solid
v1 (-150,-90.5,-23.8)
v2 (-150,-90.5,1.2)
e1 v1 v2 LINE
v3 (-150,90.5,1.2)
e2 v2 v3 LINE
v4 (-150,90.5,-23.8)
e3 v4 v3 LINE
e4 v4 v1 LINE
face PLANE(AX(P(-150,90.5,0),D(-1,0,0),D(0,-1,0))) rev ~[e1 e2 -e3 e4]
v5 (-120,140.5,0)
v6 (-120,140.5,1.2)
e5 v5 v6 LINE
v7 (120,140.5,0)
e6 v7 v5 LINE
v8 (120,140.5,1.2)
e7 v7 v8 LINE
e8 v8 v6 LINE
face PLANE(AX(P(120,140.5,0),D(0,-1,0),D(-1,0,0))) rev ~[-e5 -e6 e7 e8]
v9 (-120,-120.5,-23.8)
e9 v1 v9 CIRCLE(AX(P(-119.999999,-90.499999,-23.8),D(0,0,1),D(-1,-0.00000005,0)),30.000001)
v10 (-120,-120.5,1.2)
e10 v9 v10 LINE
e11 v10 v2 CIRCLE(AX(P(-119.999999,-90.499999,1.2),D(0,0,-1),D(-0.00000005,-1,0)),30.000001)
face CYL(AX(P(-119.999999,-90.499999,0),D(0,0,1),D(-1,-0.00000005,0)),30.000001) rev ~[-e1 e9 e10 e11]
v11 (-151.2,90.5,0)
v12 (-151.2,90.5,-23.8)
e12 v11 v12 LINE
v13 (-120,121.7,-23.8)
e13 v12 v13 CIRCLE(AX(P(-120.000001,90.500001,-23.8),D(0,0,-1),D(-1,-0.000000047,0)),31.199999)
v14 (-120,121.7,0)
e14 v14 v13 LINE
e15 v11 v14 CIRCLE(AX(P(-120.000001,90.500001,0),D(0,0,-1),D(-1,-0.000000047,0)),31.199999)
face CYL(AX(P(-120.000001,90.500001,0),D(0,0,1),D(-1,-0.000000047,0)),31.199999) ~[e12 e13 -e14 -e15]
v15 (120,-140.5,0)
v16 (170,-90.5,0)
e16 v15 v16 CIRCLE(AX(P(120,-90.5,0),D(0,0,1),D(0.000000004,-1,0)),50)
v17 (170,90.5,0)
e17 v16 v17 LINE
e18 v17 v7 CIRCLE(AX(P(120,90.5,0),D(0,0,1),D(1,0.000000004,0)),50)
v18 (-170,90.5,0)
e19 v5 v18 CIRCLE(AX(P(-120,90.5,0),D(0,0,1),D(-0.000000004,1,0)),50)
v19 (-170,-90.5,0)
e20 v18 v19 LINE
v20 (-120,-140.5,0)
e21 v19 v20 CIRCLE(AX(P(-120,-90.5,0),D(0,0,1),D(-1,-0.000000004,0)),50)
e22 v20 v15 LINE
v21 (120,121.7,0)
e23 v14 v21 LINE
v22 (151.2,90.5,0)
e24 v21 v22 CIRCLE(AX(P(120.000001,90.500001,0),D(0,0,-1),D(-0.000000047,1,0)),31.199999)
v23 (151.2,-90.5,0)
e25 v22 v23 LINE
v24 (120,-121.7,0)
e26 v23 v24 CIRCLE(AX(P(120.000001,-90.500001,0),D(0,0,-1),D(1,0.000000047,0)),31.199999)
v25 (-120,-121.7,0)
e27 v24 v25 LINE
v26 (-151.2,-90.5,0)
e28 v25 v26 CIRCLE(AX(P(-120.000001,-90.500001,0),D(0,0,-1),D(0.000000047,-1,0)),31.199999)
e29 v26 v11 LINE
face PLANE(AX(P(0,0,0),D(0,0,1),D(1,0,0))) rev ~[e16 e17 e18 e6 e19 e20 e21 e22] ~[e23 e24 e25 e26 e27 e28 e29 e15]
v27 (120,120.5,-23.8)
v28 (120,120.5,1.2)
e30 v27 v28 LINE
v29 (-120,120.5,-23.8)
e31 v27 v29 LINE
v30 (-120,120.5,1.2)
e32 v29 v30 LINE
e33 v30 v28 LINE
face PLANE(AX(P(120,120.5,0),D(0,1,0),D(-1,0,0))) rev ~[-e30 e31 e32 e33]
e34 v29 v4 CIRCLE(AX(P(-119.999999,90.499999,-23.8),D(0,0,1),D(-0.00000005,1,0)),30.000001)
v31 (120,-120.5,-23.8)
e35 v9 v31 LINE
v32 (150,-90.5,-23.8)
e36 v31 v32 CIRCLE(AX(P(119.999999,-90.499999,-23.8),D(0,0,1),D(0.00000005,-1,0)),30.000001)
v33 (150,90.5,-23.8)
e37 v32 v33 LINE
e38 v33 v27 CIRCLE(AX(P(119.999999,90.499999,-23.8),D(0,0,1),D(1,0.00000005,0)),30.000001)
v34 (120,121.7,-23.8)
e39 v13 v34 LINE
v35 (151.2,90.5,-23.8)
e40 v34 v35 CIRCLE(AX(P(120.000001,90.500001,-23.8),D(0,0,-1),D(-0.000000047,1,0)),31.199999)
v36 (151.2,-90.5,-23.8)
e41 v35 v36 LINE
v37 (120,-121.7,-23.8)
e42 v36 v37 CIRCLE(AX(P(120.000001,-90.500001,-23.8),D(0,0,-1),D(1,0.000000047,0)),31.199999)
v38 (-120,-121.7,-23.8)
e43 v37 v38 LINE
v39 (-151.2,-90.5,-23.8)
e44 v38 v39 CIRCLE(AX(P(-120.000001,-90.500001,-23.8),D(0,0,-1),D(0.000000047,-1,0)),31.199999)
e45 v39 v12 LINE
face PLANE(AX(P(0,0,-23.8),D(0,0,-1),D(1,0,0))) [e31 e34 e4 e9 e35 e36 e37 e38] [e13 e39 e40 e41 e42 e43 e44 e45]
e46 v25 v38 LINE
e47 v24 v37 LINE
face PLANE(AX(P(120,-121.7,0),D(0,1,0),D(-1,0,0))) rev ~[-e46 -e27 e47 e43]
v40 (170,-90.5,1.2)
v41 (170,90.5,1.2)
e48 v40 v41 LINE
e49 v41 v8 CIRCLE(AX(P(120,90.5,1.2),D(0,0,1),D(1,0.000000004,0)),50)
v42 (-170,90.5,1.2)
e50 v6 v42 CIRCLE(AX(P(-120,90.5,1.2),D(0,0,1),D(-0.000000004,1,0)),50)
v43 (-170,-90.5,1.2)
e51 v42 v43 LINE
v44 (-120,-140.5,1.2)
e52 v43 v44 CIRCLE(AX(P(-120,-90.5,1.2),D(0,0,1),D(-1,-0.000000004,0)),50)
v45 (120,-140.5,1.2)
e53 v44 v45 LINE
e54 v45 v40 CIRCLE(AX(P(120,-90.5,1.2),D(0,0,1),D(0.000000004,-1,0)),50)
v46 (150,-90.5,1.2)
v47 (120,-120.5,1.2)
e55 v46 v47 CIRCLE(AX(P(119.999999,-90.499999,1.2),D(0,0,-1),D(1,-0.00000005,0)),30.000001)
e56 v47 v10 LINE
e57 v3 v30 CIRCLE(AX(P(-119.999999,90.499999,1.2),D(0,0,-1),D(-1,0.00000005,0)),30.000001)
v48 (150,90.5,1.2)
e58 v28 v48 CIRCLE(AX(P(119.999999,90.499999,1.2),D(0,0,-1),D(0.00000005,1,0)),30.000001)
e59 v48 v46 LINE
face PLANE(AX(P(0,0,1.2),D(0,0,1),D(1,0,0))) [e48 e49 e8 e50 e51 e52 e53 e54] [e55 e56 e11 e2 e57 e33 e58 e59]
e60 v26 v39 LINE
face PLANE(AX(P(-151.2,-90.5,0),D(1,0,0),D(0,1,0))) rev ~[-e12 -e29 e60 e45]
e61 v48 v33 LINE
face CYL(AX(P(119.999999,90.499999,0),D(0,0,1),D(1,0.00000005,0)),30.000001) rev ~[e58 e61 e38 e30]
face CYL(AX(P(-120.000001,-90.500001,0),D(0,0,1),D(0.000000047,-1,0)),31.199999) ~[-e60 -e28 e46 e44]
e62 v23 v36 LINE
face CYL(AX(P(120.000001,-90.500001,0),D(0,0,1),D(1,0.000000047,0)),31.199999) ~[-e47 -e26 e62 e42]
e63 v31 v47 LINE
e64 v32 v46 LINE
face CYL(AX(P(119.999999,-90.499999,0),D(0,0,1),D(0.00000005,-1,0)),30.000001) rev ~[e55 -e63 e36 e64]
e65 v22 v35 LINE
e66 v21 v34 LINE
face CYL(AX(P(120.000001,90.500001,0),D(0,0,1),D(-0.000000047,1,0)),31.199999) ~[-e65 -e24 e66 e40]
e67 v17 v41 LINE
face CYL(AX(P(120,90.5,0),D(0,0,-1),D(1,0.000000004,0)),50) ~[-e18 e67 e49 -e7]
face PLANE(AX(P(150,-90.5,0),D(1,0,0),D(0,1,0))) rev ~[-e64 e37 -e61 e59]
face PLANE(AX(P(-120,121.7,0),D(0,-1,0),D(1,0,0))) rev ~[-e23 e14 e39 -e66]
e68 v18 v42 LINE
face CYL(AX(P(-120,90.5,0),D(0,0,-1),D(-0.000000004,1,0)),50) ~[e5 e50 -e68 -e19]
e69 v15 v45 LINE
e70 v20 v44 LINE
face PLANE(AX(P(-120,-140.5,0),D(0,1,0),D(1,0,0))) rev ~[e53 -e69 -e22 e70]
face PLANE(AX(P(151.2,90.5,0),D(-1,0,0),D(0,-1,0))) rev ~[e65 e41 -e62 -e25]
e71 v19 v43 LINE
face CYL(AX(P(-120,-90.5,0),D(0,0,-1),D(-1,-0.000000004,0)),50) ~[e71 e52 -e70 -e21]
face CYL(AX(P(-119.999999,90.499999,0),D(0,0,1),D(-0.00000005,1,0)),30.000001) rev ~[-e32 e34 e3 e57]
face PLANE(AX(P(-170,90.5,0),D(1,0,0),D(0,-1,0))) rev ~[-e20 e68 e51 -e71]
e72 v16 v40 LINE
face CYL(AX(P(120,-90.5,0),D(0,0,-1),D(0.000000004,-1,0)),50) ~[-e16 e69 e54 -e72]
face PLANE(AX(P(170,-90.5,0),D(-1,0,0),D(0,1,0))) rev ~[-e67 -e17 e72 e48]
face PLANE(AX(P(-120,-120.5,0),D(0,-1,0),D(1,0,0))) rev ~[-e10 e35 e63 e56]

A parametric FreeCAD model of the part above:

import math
import FreeCAD as App
import Part
import Sketcher

doc = App.newDocument("Part")
body = doc.addObject("PartDesign::Body", "Body")

sketch1 = body.newObject("Sketcher::SketchObject", "Sketch")
sketch1.AttachmentSupport = (doc.getObject("XY_Plane"), [""])
sketch1.MapMode = "FlatFace"
sketch1.addGeometry(Part.ArcOfCircle(Part.Circle(App.Vector(120, 90.5, 0), App.Vector(0, 0, 1), 50), math.radians(0), math.radians(90)), False)
sketch1.addGeometry(Part.LineSegment(App.Vector(120, 140.5, 0), App.Vector(-120, 140.5, 0)), False)
sketch1.addGeometry(Part.ArcOfCircle(Part.Circle(App.Vector(-120, 90.5, 0), App.Vector(0, 0, 1), 50), math.radians(90), math.radians(180)), False)
sketch1.addGeometry(Part.LineSegment(App.Vector(-170, 90.5, 0), App.Vector(-170, -90.5, 0)), False)
sketch1.addGeometry(Part.ArcOfCircle(Part.Circle(App.Vector(-120, -90.5, 0), App.Vector(0, 0, 1), 50), math.radians(-180), math.radians(-90)), False)
sketch1.addGeometry(Part.LineSegment(App.Vector(-120, -140.5, 0), App.Vector(120, -140.5, 0)), False)
sketch1.addGeometry(Part.ArcOfCircle(Part.Circle(App.Vector(120, -90.5, 0), App.Vector(0, 0, 1), 50), math.radians(-90), math.radians(0)), False)
sketch1.addGeometry(Part.LineSegment(App.Vector(170, -90.5, 0), App.Vector(170, 90.5, 0)), False)
sketch1.addGeometry(Part.LineSegment(App.Vector(-120, 120.5, 0), App.Vector(120, 120.5, 0)), False)
sketch1.addGeometry(Part.ArcOfCircle(Part.Circle(App.Vector(119.999999, 90.499999, 0), App.Vector(0, 0, 1), 30.000001), math.radians(0.000003), math.radians(89.999997)), False)
sketch1.addGeometry(Part.LineSegment(App.Vector(150, 90.5, 0), App.Vector(150, -90.5, 0)), False)
sketch1.addGeometry(Part.ArcOfCircle(Part.Circle(App.Vector(119.999999, -90.499999, 0), App.Vector(0, 0, 1), 30.000001), math.radians(-89.999997), math.radians(-0.000003)), False)
sketch1.addGeometry(Part.LineSegment(App.Vector(120, -120.5, 0), App.Vector(-120, -120.5, 0)), False)
sketch1.addGeometry(Part.ArcOfCircle(Part.Circle(App.Vector(-119.999999, -90.499999, 0), App.Vector(0, 0, 1), 30.000001), math.radians(-179.999997), math.radians(-90.000003)), False)
sketch1.addGeometry(Part.LineSegment(App.Vector(-150, -90.5, 0), App.Vector(-150, 90.5, 0)), False)
sketch1.addGeometry(Part.ArcOfCircle(Part.Circle(App.Vector(-119.999999, 90.499999, 0), App.Vector(0, 0, 1), 30.000001), math.radians(90.000003), math.radians(179.999997)), False)
sketch1.addConstraint(Sketcher.Constraint("Tangent", 0, 2, 1, 1))
sketch1.addConstraint(Sketcher.Constraint("Tangent", 1, 2, 2, 1))
sketch1.addConstraint(Sketcher.Constraint("Tangent", 2, 2, 3, 1))
sketch1.addConstraint(Sketcher.Constraint("Tangent", 3, 2, 4, 1))
sketch1.addConstraint(Sketcher.Constraint("Tangent", 4, 2, 5, 1))
sketch1.addConstraint(Sketcher.Constraint("Tangent", 5, 2, 6, 1))
sketch1.addConstraint(Sketcher.Constraint("Tangent", 6, 2, 7, 1))
sketch1.addConstraint(Sketcher.Constraint("Tangent", 7, 2, 0, 1))
sketch1.addConstraint(Sketcher.Constraint("Tangent", 8, 2, 9, 2))
sketch1.addConstraint(Sketcher.Constraint("Tangent", 9, 1, 10, 1))
sketch1.addConstraint(Sketcher.Constraint("Tangent", 10, 2, 11, 2))
sketch1.addConstraint(Sketcher.Constraint("Tangent", 11, 1, 12, 1))
sketch1.addConstraint(Sketcher.Constraint("Tangent", 12, 2, 13, 2))
sketch1.addConstraint(Sketcher.Constraint("Tangent", 13, 1, 14, 1))
sketch1.addConstraint(Sketcher.Constraint("Tangent", 14, 2, 15, 2))
sketch1.addConstraint(Sketcher.Constraint("Tangent", 15, 1, 8, 1))
sketch1.addConstraint(Sketcher.Constraint("Horizontal", 1))
sketch1.addConstraint(Sketcher.Constraint("Vertical", 3))
sketch1.addConstraint(Sketcher.Constraint("Horizontal", 5))
sketch1.addConstraint(Sketcher.Constraint("Vertical", 7))
sketch1.addConstraint(Sketcher.Constraint("Horizontal", 8))
sketch1.addConstraint(Sketcher.Constraint("Vertical", 10))
sketch1.addConstraint(Sketcher.Constraint("Horizontal", 12))
sketch1.addConstraint(Sketcher.Constraint("Vertical", 14))
sketch1.addConstraint(Sketcher.Constraint("Coincident", 9, 3, 0, 3))
sketch1.addConstraint(Sketcher.Constraint("Coincident", 11, 3, 6, 3))
sketch1.addConstraint(Sketcher.Constraint("Coincident", 13, 3, 4, 3))
sketch1.addConstraint(Sketcher.Constraint("Equal", 0, 2))
sketch1.addConstraint(Sketcher.Constraint("Equal", 2, 4))
sketch1.addConstraint(Sketcher.Constraint("Equal", 4, 6))
sketch1.addConstraint(Sketcher.Constraint("Equal", 13, 15))
sketch1.addConstraint(Sketcher.Constraint("Symmetric", 0, 3, 4, 3, -1, 1))
sketch1.addConstraint(Sketcher.Constraint("Radius", 0, 50.0))
sketch1.addConstraint(Sketcher.Constraint("Radius", 9, 30.000001))
sketch1.addConstraint(Sketcher.Constraint("DistanceX", 1, 2, 1, 1, 240.0))
sketch1.addConstraint(Sketcher.Constraint("DistanceY", 3, 2, 3, 1, 181.0))
pad1 = body.newObject("PartDesign::Pad", "Pad")
pad1.Profile = sketch1
pad1.Length = 1.2

sketch2 = body.newObject("Sketcher::SketchObject", "Sketch001")
sketch2.AttachmentSupport = (doc.getObject("XY_Plane"), [""])
sketch2.MapMode = "FlatFace"
sketch2.addGeometry(Part.ArcOfCircle(Part.Circle(App.Vector(120.000001, 90.500001, 0), App.Vector(0, 0, 1), 31.199999), math.radians(-0.000003), math.radians(90.000003)), False)
sketch2.addGeometry(Part.LineSegment(App.Vector(151.2, 90.5, 0), App.Vector(151.2, -90.5, 0)), False)
sketch2.addGeometry(Part.ArcOfCircle(Part.Circle(App.Vector(120.000001, -90.500001, 0), App.Vector(0, 0, 1), 31.199999), math.radians(-90.000003), math.radians(0.000003)), False)
sketch2.addGeometry(Part.LineSegment(App.Vector(120, -121.7, 0), App.Vector(-120, -121.7, 0)), False)
sketch2.addGeometry(Part.ArcOfCircle(Part.Circle(App.Vector(-120.000001, -90.500001, 0), App.Vector(0, 0, 1), 31.199999), math.radians(179.999997), math.radians(270.000003)), False)
sketch2.addGeometry(Part.LineSegment(App.Vector(-151.2, -90.5, 0), App.Vector(-151.2, 90.5, 0)), False)
sketch2.addGeometry(Part.ArcOfCircle(Part.Circle(App.Vector(-120.000001, 90.500001, 0), App.Vector(0, 0, 1), 31.199999), math.radians(89.999997), math.radians(180.000003)), False)
sketch2.addGeometry(Part.LineSegment(App.Vector(-120, 121.7, 0), App.Vector(120, 121.7, 0)), False)
sketch2.addGeometry(Part.LineSegment(App.Vector(150, -90.5, 0), App.Vector(150, 90.5, 0)), False)
sketch2.addGeometry(Part.ArcOfCircle(Part.Circle(App.Vector(119.999999, 90.499999, 0), App.Vector(0, 0, 1), 30.000001), math.radians(0.000003), math.radians(89.999997)), False)
sketch2.addGeometry(Part.LineSegment(App.Vector(120, 120.5, 0), App.Vector(-120, 120.5, 0)), False)
sketch2.addGeometry(Part.ArcOfCircle(Part.Circle(App.Vector(-119.999999, 90.499999, 0), App.Vector(0, 0, 1), 30.000001), math.radians(90.000003), math.radians(179.999997)), False)
sketch2.addGeometry(Part.LineSegment(App.Vector(-150, 90.5, 0), App.Vector(-150, -90.5, 0)), False)
sketch2.addGeometry(Part.ArcOfCircle(Part.Circle(App.Vector(-119.999999, -90.499999, 0), App.Vector(0, 0, 1), 30.000001), math.radians(-179.999997), math.radians(-90.000003)), False)
sketch2.addGeometry(Part.LineSegment(App.Vector(-120, -120.5, 0), App.Vector(120, -120.5, 0)), False)
sketch2.addGeometry(Part.ArcOfCircle(Part.Circle(App.Vector(119.999999, -90.499999, 0), App.Vector(0, 0, 1), 30.000001), math.radians(-89.999997), math.radians(-0.000003)), False)
sketch2.addConstraint(Sketcher.Constraint("Tangent", 0, 1, 1, 1))
sketch2.addConstraint(Sketcher.Constraint("Tangent", 1, 2, 2, 2))
sketch2.addConstraint(Sketcher.Constraint("Tangent", 2, 1, 3, 1))
sketch2.addConstraint(Sketcher.Constraint("Tangent", 3, 2, 4, 2))
sketch2.addConstraint(Sketcher.Constraint("Tangent", 4, 1, 5, 1))
sketch2.addConstraint(Sketcher.Constraint("Tangent", 5, 2, 6, 2))
sketch2.addConstraint(Sketcher.Constraint("Tangent", 6, 1, 7, 1))
sketch2.addConstraint(Sketcher.Constraint("Tangent", 7, 2, 0, 2))
sketch2.addConstraint(Sketcher.Constraint("Tangent", 8, 2, 9, 1))
sketch2.addConstraint(Sketcher.Constraint("Tangent", 9, 2, 10, 1))
sketch2.addConstraint(Sketcher.Constraint("Tangent", 10, 2, 11, 1))
sketch2.addConstraint(Sketcher.Constraint("Tangent", 11, 2, 12, 1))
sketch2.addConstraint(Sketcher.Constraint("Tangent", 12, 2, 13, 1))
sketch2.addConstraint(Sketcher.Constraint("Tangent", 13, 2, 14, 1))
sketch2.addConstraint(Sketcher.Constraint("Tangent", 14, 2, 15, 1))
sketch2.addConstraint(Sketcher.Constraint("Tangent", 15, 2, 8, 1))
sketch2.addConstraint(Sketcher.Constraint("Vertical", 1))
sketch2.addConstraint(Sketcher.Constraint("Horizontal", 3))
sketch2.addConstraint(Sketcher.Constraint("Vertical", 5))
sketch2.addConstraint(Sketcher.Constraint("Horizontal", 7))
sketch2.addConstraint(Sketcher.Constraint("Vertical", 8))
sketch2.addConstraint(Sketcher.Constraint("Horizontal", 10))
sketch2.addConstraint(Sketcher.Constraint("Vertical", 12))
sketch2.addConstraint(Sketcher.Constraint("Horizontal", 14))
sketch2.addConstraint(Sketcher.Constraint("Coincident", 9, 3, 0, 3))
sketch2.addConstraint(Sketcher.Constraint("Coincident", 11, 3, 6, 3))
sketch2.addConstraint(Sketcher.Constraint("Coincident", 13, 3, 4, 3))
sketch2.addConstraint(Sketcher.Constraint("Equal", 0, 2))
sketch2.addConstraint(Sketcher.Constraint("Equal", 2, 4))
sketch2.addConstraint(Sketcher.Constraint("Equal", 4, 6))
sketch2.addConstraint(Sketcher.Constraint("Equal", 13, 15))
sketch2.addConstraint(Sketcher.Constraint("Symmetric", 0, 3, 4, 3, -1, 1))
sketch2.addConstraint(Sketcher.Constraint("Radius", 9, 30.000001))
sketch2.addConstraint(Sketcher.Constraint("Radius", 0, 31.199999))
sketch2.addConstraint(Sketcher.Constraint("DistanceX", 3, 2, 3, 1, 240.0))
sketch2.addConstraint(Sketcher.Constraint("DistanceY", 1, 2, 1, 1, 181.0))
pad2 = body.newObject("PartDesign::Pad", "Pad001")
pad2.Profile = sketch2
pad2.Length = 23.8
pad2.Reversed = True

doc.recompute()
